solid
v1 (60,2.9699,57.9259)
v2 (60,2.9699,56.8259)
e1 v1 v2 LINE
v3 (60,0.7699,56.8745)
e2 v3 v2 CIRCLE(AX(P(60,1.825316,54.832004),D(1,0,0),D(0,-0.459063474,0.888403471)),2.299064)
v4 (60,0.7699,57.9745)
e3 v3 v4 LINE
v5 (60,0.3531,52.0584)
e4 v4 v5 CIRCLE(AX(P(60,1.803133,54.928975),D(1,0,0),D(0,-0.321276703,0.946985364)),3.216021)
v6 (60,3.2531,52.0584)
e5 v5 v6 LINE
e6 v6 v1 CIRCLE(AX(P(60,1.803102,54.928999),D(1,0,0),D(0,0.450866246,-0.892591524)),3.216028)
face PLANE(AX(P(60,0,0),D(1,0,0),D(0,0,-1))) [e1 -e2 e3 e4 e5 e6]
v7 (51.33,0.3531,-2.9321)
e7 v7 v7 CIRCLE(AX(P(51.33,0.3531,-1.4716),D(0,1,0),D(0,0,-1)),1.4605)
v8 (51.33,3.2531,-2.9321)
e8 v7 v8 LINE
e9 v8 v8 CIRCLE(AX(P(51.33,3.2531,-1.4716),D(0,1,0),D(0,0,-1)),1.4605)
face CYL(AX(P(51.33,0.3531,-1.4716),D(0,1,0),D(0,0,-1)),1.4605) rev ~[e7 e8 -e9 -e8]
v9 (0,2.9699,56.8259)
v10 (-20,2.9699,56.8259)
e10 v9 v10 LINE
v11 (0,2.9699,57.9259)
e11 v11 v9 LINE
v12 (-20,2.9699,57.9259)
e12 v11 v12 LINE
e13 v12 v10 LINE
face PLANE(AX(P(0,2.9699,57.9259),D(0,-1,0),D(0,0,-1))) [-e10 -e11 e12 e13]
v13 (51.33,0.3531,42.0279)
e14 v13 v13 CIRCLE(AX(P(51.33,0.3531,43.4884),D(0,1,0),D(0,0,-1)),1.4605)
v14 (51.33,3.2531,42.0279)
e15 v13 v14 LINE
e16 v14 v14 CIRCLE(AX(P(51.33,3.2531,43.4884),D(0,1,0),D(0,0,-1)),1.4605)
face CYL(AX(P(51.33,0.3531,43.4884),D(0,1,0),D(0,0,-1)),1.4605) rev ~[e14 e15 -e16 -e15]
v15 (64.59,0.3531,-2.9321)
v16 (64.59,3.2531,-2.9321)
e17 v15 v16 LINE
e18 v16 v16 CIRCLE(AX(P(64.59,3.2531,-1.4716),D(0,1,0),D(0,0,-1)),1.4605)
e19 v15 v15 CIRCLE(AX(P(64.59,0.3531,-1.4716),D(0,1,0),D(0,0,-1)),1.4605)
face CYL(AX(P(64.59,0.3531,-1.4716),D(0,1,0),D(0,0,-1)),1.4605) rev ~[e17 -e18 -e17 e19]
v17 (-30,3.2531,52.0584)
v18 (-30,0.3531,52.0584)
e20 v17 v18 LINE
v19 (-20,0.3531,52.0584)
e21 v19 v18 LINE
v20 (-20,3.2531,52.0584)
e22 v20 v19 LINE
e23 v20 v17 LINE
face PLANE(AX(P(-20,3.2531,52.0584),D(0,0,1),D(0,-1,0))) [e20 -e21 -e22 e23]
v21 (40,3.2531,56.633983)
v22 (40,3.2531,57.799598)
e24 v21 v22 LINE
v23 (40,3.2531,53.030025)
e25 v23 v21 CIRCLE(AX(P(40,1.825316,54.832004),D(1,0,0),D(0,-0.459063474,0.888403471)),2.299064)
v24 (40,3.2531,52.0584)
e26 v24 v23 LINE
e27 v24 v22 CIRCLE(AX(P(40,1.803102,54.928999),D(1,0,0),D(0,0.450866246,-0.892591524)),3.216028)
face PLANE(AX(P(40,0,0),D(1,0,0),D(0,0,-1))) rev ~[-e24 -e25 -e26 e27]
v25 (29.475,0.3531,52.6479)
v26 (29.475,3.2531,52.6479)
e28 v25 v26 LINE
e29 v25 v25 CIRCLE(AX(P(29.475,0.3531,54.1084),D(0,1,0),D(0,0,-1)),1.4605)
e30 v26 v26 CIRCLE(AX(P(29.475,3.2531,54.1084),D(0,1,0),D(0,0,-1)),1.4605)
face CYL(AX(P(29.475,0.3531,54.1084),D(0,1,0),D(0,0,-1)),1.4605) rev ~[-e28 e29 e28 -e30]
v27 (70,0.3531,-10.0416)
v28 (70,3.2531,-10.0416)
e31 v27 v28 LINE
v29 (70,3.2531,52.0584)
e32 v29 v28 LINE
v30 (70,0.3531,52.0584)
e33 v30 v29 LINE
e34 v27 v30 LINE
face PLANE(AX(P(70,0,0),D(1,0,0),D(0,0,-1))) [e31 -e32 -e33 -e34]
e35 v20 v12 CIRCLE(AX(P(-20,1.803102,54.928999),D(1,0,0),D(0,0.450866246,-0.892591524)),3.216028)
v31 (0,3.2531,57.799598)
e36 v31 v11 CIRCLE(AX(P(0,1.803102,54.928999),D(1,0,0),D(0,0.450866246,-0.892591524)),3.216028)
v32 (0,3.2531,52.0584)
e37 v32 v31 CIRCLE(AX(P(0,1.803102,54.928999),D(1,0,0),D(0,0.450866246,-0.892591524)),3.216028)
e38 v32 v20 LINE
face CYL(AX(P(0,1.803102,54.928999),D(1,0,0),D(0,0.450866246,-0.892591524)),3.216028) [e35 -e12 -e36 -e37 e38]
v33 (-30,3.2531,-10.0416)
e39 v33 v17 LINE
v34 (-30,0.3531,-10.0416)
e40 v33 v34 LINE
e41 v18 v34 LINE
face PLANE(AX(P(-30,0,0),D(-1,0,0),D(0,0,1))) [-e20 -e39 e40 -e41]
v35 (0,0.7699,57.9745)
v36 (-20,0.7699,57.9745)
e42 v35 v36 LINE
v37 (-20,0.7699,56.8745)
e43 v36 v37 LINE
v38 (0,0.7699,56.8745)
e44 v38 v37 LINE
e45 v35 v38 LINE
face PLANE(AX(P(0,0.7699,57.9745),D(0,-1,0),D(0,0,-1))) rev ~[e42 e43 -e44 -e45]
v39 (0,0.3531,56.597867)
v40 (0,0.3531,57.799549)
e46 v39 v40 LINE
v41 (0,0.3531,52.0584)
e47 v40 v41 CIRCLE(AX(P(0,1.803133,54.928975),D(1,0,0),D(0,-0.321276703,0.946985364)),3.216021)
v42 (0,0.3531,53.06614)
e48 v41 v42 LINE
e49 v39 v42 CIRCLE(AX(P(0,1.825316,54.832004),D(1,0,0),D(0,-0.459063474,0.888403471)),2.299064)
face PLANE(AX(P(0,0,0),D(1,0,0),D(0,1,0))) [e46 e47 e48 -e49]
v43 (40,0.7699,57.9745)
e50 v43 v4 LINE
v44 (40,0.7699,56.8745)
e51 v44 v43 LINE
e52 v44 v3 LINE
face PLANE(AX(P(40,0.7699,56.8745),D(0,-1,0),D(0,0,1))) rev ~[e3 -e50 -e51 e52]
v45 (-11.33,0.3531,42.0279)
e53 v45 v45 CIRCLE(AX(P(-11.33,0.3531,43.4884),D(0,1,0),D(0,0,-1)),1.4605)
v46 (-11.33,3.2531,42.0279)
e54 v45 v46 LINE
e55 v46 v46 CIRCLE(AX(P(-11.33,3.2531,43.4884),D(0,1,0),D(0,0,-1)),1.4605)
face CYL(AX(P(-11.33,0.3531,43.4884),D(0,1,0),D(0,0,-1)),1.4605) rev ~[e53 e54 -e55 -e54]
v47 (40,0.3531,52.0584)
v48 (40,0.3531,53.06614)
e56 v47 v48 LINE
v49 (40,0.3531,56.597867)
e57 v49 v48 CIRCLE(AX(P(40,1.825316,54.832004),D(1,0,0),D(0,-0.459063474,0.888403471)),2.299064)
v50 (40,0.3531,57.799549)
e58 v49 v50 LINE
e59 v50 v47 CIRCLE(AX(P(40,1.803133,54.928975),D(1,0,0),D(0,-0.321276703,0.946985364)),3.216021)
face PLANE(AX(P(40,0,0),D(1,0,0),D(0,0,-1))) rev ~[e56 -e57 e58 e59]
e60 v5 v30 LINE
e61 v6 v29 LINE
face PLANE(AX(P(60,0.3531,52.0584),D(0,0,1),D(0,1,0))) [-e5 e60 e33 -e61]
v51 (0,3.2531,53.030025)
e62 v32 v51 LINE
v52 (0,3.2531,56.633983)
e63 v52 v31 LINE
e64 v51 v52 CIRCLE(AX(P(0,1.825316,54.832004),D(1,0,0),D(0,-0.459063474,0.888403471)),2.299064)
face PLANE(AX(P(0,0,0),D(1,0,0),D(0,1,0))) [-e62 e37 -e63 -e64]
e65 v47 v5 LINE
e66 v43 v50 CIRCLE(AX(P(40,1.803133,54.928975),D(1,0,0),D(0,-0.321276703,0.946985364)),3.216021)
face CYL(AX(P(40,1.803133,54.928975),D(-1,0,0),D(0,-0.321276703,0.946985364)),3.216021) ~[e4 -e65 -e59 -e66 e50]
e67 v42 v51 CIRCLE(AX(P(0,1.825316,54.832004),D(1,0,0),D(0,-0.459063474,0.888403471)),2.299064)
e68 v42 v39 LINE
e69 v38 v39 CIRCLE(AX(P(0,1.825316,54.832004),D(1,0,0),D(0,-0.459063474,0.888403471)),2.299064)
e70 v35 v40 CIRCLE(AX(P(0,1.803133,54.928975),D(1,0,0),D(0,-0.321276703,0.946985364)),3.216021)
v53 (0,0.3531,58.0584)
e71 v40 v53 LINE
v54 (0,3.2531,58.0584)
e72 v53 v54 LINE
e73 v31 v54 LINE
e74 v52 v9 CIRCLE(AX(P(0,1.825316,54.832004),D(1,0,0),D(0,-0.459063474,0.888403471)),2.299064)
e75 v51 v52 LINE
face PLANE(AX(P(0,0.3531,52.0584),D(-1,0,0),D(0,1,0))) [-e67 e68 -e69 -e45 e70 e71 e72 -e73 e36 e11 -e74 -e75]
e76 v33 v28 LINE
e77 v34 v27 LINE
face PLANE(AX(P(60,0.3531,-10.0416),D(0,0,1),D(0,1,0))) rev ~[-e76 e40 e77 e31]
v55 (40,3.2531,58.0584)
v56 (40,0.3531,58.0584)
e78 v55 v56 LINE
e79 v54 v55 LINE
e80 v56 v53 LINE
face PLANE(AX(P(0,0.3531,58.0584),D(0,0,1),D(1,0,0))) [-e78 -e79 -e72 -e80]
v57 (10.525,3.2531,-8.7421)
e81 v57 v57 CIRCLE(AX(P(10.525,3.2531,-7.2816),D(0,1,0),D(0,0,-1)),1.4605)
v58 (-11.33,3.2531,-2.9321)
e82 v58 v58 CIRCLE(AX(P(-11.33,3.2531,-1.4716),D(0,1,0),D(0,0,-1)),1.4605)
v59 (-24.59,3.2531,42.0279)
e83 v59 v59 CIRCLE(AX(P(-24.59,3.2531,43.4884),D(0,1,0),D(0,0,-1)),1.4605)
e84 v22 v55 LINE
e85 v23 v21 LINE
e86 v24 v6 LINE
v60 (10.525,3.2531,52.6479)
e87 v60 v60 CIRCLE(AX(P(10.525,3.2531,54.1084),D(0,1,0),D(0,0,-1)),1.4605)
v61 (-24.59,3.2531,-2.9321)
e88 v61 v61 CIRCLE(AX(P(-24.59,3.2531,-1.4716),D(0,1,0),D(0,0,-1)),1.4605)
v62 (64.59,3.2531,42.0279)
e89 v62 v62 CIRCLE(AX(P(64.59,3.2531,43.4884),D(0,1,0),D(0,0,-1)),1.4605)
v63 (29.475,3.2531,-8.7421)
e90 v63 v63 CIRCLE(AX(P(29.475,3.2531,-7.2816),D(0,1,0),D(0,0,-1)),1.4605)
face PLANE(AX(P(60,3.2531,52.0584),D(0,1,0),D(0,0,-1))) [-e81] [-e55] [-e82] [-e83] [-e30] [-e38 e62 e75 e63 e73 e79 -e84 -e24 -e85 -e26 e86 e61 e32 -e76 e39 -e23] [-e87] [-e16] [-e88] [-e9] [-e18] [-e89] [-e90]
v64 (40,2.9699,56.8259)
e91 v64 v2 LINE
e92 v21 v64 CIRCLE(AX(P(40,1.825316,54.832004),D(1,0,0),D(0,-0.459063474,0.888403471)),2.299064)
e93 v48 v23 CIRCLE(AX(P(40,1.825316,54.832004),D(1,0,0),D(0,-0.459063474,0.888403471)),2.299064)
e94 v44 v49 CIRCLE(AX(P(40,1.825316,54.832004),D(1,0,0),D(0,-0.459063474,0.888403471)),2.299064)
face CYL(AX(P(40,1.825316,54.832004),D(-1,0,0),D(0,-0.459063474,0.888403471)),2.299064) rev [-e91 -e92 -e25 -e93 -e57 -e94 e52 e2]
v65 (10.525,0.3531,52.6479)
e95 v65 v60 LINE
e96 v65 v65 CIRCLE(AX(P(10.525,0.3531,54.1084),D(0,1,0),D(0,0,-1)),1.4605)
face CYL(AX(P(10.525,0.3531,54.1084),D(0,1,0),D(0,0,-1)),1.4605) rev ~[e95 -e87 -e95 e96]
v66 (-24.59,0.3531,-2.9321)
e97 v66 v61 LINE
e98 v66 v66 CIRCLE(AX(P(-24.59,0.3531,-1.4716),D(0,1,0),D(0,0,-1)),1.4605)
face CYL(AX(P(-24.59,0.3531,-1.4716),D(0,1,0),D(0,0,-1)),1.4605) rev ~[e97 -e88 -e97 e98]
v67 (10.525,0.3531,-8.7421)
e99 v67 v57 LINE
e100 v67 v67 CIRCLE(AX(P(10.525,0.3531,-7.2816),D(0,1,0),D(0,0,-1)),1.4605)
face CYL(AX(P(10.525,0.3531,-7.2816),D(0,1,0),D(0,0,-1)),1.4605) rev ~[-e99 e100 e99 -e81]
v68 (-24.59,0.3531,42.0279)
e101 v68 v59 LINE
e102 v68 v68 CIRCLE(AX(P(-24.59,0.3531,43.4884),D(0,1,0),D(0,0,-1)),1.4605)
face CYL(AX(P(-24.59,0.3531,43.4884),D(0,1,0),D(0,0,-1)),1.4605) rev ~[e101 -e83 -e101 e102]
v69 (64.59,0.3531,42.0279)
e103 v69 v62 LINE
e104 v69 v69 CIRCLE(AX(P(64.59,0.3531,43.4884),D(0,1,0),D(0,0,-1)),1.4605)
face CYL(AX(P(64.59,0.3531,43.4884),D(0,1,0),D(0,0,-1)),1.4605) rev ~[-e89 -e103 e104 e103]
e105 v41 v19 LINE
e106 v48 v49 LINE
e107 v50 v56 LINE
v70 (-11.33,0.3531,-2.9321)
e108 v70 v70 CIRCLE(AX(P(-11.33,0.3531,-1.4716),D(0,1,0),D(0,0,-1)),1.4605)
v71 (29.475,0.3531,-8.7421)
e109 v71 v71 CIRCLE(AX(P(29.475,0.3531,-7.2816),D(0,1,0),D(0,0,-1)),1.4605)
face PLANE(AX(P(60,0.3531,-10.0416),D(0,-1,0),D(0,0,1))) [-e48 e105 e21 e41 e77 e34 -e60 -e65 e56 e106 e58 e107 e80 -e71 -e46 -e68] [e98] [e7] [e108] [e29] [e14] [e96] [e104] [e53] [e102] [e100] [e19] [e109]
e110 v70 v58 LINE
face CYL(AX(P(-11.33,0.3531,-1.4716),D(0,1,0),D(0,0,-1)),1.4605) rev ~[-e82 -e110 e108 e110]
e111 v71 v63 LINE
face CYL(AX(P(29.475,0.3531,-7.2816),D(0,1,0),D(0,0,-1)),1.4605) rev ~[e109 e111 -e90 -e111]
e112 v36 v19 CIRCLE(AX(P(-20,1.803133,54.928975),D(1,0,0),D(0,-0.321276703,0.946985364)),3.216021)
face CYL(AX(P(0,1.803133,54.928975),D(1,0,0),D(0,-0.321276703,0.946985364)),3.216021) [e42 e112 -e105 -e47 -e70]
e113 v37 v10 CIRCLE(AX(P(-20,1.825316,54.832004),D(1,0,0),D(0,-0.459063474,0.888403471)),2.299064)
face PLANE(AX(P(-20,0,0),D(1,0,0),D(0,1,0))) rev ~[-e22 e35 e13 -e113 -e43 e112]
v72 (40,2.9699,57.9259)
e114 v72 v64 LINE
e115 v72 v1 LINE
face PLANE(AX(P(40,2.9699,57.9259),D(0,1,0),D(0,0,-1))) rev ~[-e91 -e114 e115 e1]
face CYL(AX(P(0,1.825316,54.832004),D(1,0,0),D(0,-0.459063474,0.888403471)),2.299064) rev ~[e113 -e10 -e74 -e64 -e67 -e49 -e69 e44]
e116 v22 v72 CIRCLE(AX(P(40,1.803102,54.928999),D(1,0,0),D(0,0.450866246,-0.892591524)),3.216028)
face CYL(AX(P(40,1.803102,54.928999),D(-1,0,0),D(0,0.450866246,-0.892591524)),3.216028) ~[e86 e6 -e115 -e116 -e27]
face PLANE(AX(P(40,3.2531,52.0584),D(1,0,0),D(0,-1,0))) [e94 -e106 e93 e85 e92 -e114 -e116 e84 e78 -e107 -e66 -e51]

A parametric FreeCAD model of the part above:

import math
import FreeCAD as App
import Part
import Sketcher

V = App.Vector
Q = App.Units.Quantity

doc = App.newDocument("Part")
params = doc.addObject("Spreadsheet::Sheet", "Params")
for row, (alias, value) in enumerate([
    ("sketch1_width", "2.9 mm"),
    ("sketch1_height", "62.1 mm"),
    ("sketch1_height2", "1.1 mm"),
    ("pad1_length", "20 mm"),
    ("sketch2_width", "2.9 mm"),
    ("sketch2_height", "62.1 mm"),
    ("pad2_length", "40 mm"),
    ("sketch3_height", "1.1 mm"),
    ("sketch3_width", "2.9 mm"),
    ("sketch3_height2", "62.1 mm"),
    ("pad3_length", "20 mm"),
    ("sketch4_width", "40 mm"),
    ("sketch4_height", "2.9 mm"),
    ("pad4_length", "6 mm"),
    ("sketch5_width", "2.9 mm"),
    ("sketch5_height", "62.1 mm"),
    ("pad5_length", "10 mm"),
    ("sketch6_width", "2.9 mm"),
    ("sketch6_height", "62.1 mm"),
    ("pad6_length", "10 mm"),
    ("hole_diameter", "2.921 mm"),
    ("hole2_diameter", "2.921 mm"),
    ("hole3_diameter", "2.921 mm"),
    ("hole4_diameter", "2.921 mm"),
    ("hole5_diameter", "2.921 mm"),
    ("hole6_diameter", "2.921 mm"),
    ("hole7_diameter", "2.921 mm"),
    ("hole8_diameter", "2.921 mm"),
    ("hole9_diameter", "2.921 mm"),
    ("hole10_diameter", "2.921 mm"),
    ("hole11_diameter", "2.921 mm"),
    ("hole12_diameter", "2.921 mm"),
], start=1):
    params.set(f"A{row}", alias)
    params.set(f"B{row}", "=" + value)
    params.setAlias(f"B{row}", alias)

body = doc.addObject("PartDesign::Body", "Body")

# Sketch on YZ plane
sketch1 = body.newObject("Sketcher::SketchObject", "Sketch")
sketch1.AttachmentSupport = (doc.getObject("YZ_Plane"), [""])
sketch1.MapMode = "FlatFace"
sketch1.addGeometry([
    Part.LineSegment(V(3.2531, -10.0416, 0), V(3.2531, 52.0584, 0)),  # 0
    Part.ArcOfCircle(Part.Circle(V(1.8031, 54.929, 0), V(0, 0, 1), 3.216029), math.radians(-63.200706), math.radians(68.727263)),  # 1
    Part.LineSegment(V(2.9699, 57.9259, 0), V(2.9699, 56.8259, 0)),  # 2
    Part.ArcOfCircle(Part.Circle(V(1.8253, 54.832, 0), V(0, 0, 1), 2.29906), math.radians(117.32629), math.radians(420.141984)),  # 3
    Part.LineSegment(V(0.7699, 56.8745, 0), V(0.7699, 57.9745, 0)),  # 4
    Part.ArcOfCircle(Part.Circle(V(1.8031, 54.929, 0), V(0, 0, 1), 3.216029), math.radians(108.739744), math.radians(243.200706)),  # 5
    Part.LineSegment(V(0.3531, 52.0584, 0), V(0.3531, -10.0416, 0)),  # 6
    Part.LineSegment(V(0.3531, -10.0416, 0), V(3.2531, -10.0416, 0)),  # 7
], False)
sketch1.addConstraint([
    Sketcher.Constraint("Coincident", 0, 2, 1, 1),
    Sketcher.Constraint("Coincident", 1, 2, 2, 1),
    Sketcher.Constraint("Coincident", 2, 2, 3, 2),
    Sketcher.Constraint("Coincident", 3, 1, 4, 1),
    Sketcher.Constraint("Coincident", 4, 2, 5, 1),
    Sketcher.Constraint("Coincident", 5, 2, 6, 1),
    Sketcher.Constraint("Coincident", 6, 2, 7, 1),
    Sketcher.Constraint("Coincident", 7, 2, 0, 1),
    Sketcher.Constraint("Vertical", 0),
    Sketcher.Constraint("Vertical", 2),
    Sketcher.Constraint("Vertical", 4),
    Sketcher.Constraint("Vertical", 6),
    Sketcher.Constraint("Horizontal", 7),
    Sketcher.Constraint("Coincident", 5, 3, 1, 3),
    Sketcher.Constraint("Equal", 1, 5),
    Sketcher.Constraint("Horizontal", 0, 2, 5, 2),
    Sketcher.Constraint("Equal", 2, 4),
    Sketcher.Constraint("DistanceX", 7, 1, 7, 2, Q("2.9 mm")),
    Sketcher.Constraint("DistanceY", 0, 1, 0, 2, Q("62.1 mm")),
    Sketcher.Constraint("DistanceY", 2, 2, 2, 1, Q("1.1 mm")),
    Sketcher.Constraint("DistanceX", 3, 1, 2, 2, Q("2.2 mm")),
    Sketcher.Constraint("Radius", 1, Q("3.216 mm")),
    Sketcher.Constraint("Radius", 3, Q("2.299 mm")),
    Sketcher.Constraint("DistanceX", -1, 1, 1, 2, Q("2.97 mm")),
    Sketcher.Constraint("DistanceX", -1, 1, 1, 3, Q("1.803 mm")),
    Sketcher.Constraint("DistanceY", -1, 1, 1, 3, Q("54.929 mm")),
])
sketch1.setExpression("Constraints[17]", "Params.sketch1_width")
sketch1.setExpression("Constraints[18]", "Params.sketch1_height")
sketch1.setExpression("Constraints[19]", "Params.sketch1_height2")
pad1 = body.newObject("PartDesign::Pad", "Pad")
pad1.Profile = sketch1
pad1.setExpression("Length", "Params.pad1_length")
pad1.Reversed = True

# Sketch on YZ plane
sketch2 = body.newObject("Sketcher::SketchObject", "Sketch001")
sketch2.AttachmentSupport = (doc.getObject("YZ_Plane"), [""])
sketch2.MapMode = "FlatFace"
sketch2.addGeometry([
    Part.LineSegment(V(0.3531, 52.0584, 0), V(0.3531, -10.0416, 0)),
    Part.LineSegment(V(0.3531, -10.0416, 0), V(3.2531, -10.0416, 0)),
    Part.LineSegment(V(3.2531, -10.0416, 0), V(3.2531, 52.0584, 0)),
    Part.LineSegment(V(3.2531, 52.0584, 0), V(0.3531, 52.0584, 0)),
], False)
sketch2.addConstraint([
    Sketcher.Constraint("Coincident", 0, 2, 1, 1),
    Sketcher.Constraint("Coincident", 1, 2, 2, 1),
    Sketcher.Constraint("Coincident", 2, 2, 3, 1),
    Sketcher.Constraint("Coincident", 3, 2, 0, 1),
    Sketcher.Constraint("Vertical", 0),
    Sketcher.Constraint("Horizontal", 1),
    Sketcher.Constraint("Vertical", 2),
    Sketcher.Constraint("Horizontal", 3),
    Sketcher.Constraint("DistanceX", 1, 1, 1, 2, Q("2.9 mm")),
    Sketcher.Constraint("DistanceY", 0, 2, 0, 1, Q("62.1 mm")),
    Sketcher.Constraint("DistanceX", -1, 1, 0, 2, Q("0.353 mm")),
    Sketcher.Constraint("DistanceY", 0, 2, -1, 1, Q("10.0416 mm")),
])
sketch2.setExpression("Constraints[8]", "Params.sketch2_width")
sketch2.setExpression("Constraints[9]", "Params.sketch2_height")
pad2 = body.newObject("PartDesign::Pad", "Pad001")
pad2.Profile = sketch2
pad2.setExpression("Length", "Params.pad2_length")

# Sketch on YZ plane
sketch3 = body.newObject("Sketcher::SketchObject", "Sketch002")
sketch3.AttachmentSupport = (doc.getObject("YZ_Plane"), [""])
sketch3.MapMode = "FlatFace"
sketch3.AttachmentOffset = App.Placement(V(0, 0, 40), App.Rotation())
sketch3.addGeometry([
    Part.LineSegment(V(0.3531, 52.0584, 0), V(0.3531, -10.0416, 0)),  # 0
    Part.LineSegment(V(0.3531, -10.0416, 0), V(3.2531, -10.0416, 0)),  # 1
    Part.LineSegment(V(3.2531, -10.0416, 0), V(3.2531, 52.0584, 0)),  # 2
    Part.ArcOfCircle(Part.Circle(V(1.8031, 54.929, 0), V(0, 0, 1), 3.216029), math.radians(-63.200706), math.radians(68.727263)),  # 3
    Part.LineSegment(V(2.9699, 57.9259, 0), V(2.9699, 56.8259, 0)),  # 4
    Part.ArcOfCircle(Part.Circle(V(1.8253, 54.832, 0), V(0, 0, 1), 2.29906), math.radians(117.32629), math.radians(420.141984)),  # 5
    Part.LineSegment(V(0.7699, 56.8745, 0), V(0.7699, 57.9745, 0)),  # 6
    Part.ArcOfCircle(Part.Circle(V(1.8031, 54.929, 0), V(0, 0, 1), 3.216029), math.radians(108.739744), math.radians(243.200706)),  # 7
], False)
sketch3.addConstraint([
    Sketcher.Constraint("Coincident", 0, 2, 1, 1),
    Sketcher.Constraint("Coincident", 1, 2, 2, 1),
    Sketcher.Constraint("Coincident", 2, 2, 3, 1),
    Sketcher.Constraint("Coincident", 3, 2, 4, 1),
    Sketcher.Constraint("Coincident", 4, 2, 5, 2),
    Sketcher.Constraint("Coincident", 5, 1, 6, 1),
    Sketcher.Constraint("Coincident", 6, 2, 7, 1),
    Sketcher.Constraint("Coincident", 7, 2, 0, 1),
    Sketcher.Constraint("Vertical", 0),
    Sketcher.Constraint("Horizontal", 1),
    Sketcher.Constraint("Vertical", 2),
    Sketcher.Constraint("Vertical", 4),
    Sketcher.Constraint("Vertical", 6),
    Sketcher.Constraint("Coincident", 7, 3, 3, 3),
    Sketcher.Constraint("Equal", 3, 7),
    Sketcher.Constraint("Horizontal", 2, 2, 7, 2),
    Sketcher.Constraint("Equal", 4, 6),
    Sketcher.Constraint("DistanceY", 4, 2, 4, 1, Q("1.1 mm")),
    Sketcher.Constraint("DistanceX", 5, 1, 4, 2, Q("2.2 mm")),
    Sketcher.Constraint("DistanceX", 1, 1, 1, 2, Q("2.9 mm")),
    Sketcher.Constraint("DistanceY", 0, 2, 0, 1, Q("62.1 mm")),
    Sketcher.Constraint("Radius", 3, Q("3.216 mm")),
    Sketcher.Constraint("Radius", 5, Q("2.299 mm")),
    Sketcher.Constraint("DistanceX", -1, 1, 3, 2, Q("2.97 mm")),
    Sketcher.Constraint("DistanceX", -1, 1, 3, 3, Q("1.803 mm")),
    Sketcher.Constraint("DistanceY", -1, 1, 3, 3, Q("54.929 mm")),
])
sketch3.setExpression("Constraints[17]", "Params.sketch3_height")
sketch3.setExpression("Constraints[19]", "Params.sketch3_width")
sketch3.setExpression("Constraints[20]", "Params.sketch3_height2")
pad3 = body.newObject("PartDesign::Pad", "Pad002")
pad3.Profile = sketch3
pad3.setExpression("Length", "Params.pad3_length")

# Sketch on XY plane
sketch4 = body.newObject("Sketcher::SketchObject", "Sketch003")
sketch4.AttachmentSupport = (doc.getObject("XY_Plane"), [""])
sketch4.MapMode = "FlatFace"
sketch4.AttachmentOffset = App.Placement(V(0, 0, 52.0584), App.Rotation())
sketch4.addGeometry([
    Part.LineSegment(V(40, 3.2531, 0), V(0, 3.2531, 0)),
    Part.LineSegment(V(0, 3.2531, 0), V(0, 0.3531, 0)),
    Part.LineSegment(V(0, 0.3531, 0), V(40, 0.3531, 0)),
    Part.LineSegment(V(40, 0.3531, 0), V(40, 3.2531, 0)),
], False)
sketch4.addConstraint([
    Sketcher.Constraint("Coincident", 0, 2, 1, 1),
    Sketcher.Constraint("Coincident", 1, 2, 2, 1),
    Sketcher.Constraint("Coincident", 2, 2, 3, 1),
    Sketcher.Constraint("Coincident", 3, 2, 0, 1),
    Sketcher.Constraint("Horizontal", 0),
    Sketcher.Constraint("Vertical", 1),
    Sketcher.Constraint("Horizontal", 2),
    Sketcher.Constraint("Vertical", 3),
    Sketcher.Constraint("PointOnObject", 0, 2, -2),
    Sketcher.Constraint("DistanceX", 0, 2, 0, 1, Q("40 mm")),
    Sketcher.Constraint("DistanceY", 1, 2, 1, 1, Q("2.9 mm")),
    Sketcher.Constraint("DistanceY", -1, 1, 0, 2, Q("3.253 mm")),
])
sketch4.setExpression("Constraints[9]", "Params.sketch4_width")
sketch4.setExpression("Constraints[10]", "Params.sketch4_height")
pad4 = body.newObject("PartDesign::Pad", "Pad003")
pad4.Profile = sketch4
pad4.setExpression("Length", "Params.pad4_length")

# Sketch on YZ plane
sketch5 = body.newObject("Sketcher::SketchObject", "Sketch004")
sketch5.AttachmentSupport = (doc.getObject("YZ_Plane"), [""])
sketch5.MapMode = "FlatFace"
sketch5.AttachmentOffset = App.Placement(V(0, 0, -20), App.Rotation())
sketch5.addGeometry([
    Part.LineSegment(V(3.2531, 52.0584, 0), V(3.2531, -10.0416, 0)),
    Part.LineSegment(V(3.2531, -10.0416, 0), V(0.3531, -10.0416, 0)),
    Part.LineSegment(V(0.3531, -10.0416, 0), V(0.3531, 52.0584, 0)),
    Part.LineSegment(V(0.3531, 52.0584, 0), V(3.2531, 52.0584, 0)),
], False)
sketch5.addConstraint([
    Sketcher.Constraint("Coincident", 0, 2, 1, 1),
    Sketcher.Constraint("Coincident", 1, 2, 2, 1),
    Sketcher.Constraint("Coincident", 2, 2, 3, 1),
    Sketcher.Constraint("Coincident", 3, 2, 0, 1),
    Sketcher.Constraint("Vertical", 0),
    Sketcher.Constraint("Horizontal", 1),
    Sketcher.Constraint("Vertical", 2),
    Sketcher.Constraint("Horizontal", 3),
    Sketcher.Constraint("DistanceX", 1, 2, 1, 1, Q("2.9 mm")),
    Sketcher.Constraint("DistanceY", 0, 2, 0, 1, Q("62.1 mm")),
    Sketcher.Constraint("DistanceX", -1, 1, 0, 2, Q("3.253 mm")),
    Sketcher.Constraint("DistanceY", 0, 2, -1, 1, Q("10.0416 mm")),
])
sketch5.setExpression("Constraints[8]", "Params.sketch5_width")
sketch5.setExpression("Constraints[9]", "Params.sketch5_height")
pad5 = body.newObject("PartDesign::Pad", "Pad004")
pad5.Profile = sketch5
pad5.setExpression("Length", "Params.pad5_length")
pad5.Reversed = True

# Sketch on YZ plane
sketch6 = body.newObject("Sketcher::SketchObject", "Sketch005")
sketch6.AttachmentSupport = (doc.getObject("YZ_Plane"), [""])
sketch6.MapMode = "FlatFace"
sketch6.AttachmentOffset = App.Placement(V(0, 0, 60), App.Rotation())
sketch6.addGeometry([
    Part.LineSegment(V(0.3531, 52.0584, 0), V(0.3531, -10.0416, 0)),
    Part.LineSegment(V(0.3531, -10.0416, 0), V(3.2531, -10.0416, 0)),
    Part.LineSegment(V(3.2531, -10.0416, 0), V(3.2531, 52.0584, 0)),
    Part.LineSegment(V(3.2531, 52.0584, 0), V(0.3531, 52.0584, 0)),
], False)
sketch6.addConstraint([
    Sketcher.Constraint("Coincident", 0, 2, 1, 1),
    Sketcher.Constraint("Coincident", 1, 2, 2, 1),
    Sketcher.Constraint("Coincident", 2, 2, 3, 1),
    Sketcher.Constraint("Coincident", 3, 2, 0, 1),
    Sketcher.Constraint("Vertical", 0),
    Sketcher.Constraint("Horizontal", 1),
    Sketcher.Constraint("Vertical", 2),
    Sketcher.Constraint("Horizontal", 3),
    Sketcher.Constraint("DistanceX", 1, 1, 1, 2, Q("2.9 mm")),
    Sketcher.Constraint("DistanceY", 0, 2, 0, 1, Q("62.1 mm")),
    Sketcher.Constraint("DistanceX", -1, 1, 0, 2, Q("0.353 mm")),
    Sketcher.Constraint("DistanceY", 0, 2, -1, 1, Q("10.0416 mm")),
])
sketch6.setExpression("Constraints[8]", "Params.sketch6_width")
sketch6.setExpression("Constraints[9]", "Params.sketch6_height")
pad6 = body.newObject("PartDesign::Pad", "Pad005")
pad6.Profile = sketch6
pad6.setExpression("Length", "Params.pad6_length")

# Sketch on XZ plane
sketch7 = body.newObject("Sketcher::SketchObject", "Sketch006")
sketch7.AttachmentSupport = (doc.getObject("XZ_Plane"), [""])
sketch7.MapMode = "FlatFace"
sketch7.AttachmentOffset = App.Placement(V(0, 0, -0.3531), App.Rotation())
sketch7.addGeometry(Part.Circle(V(10.525, 54.1084, 0), V(0, 0, 1), 1.4605), False)
sketch7.addConstraint([
    Sketcher.Constraint("Diameter", 0, Q("2.921 mm")),
    Sketcher.Constraint("DistanceX", -1, 1, 0, 3, Q("10.525 mm")),
    Sketcher.Constraint("DistanceY", -1, 1, 0, 3, Q("54.1084 mm")),
])
doc.recompute()
hole = body.newObject("PartDesign::Hole", "Hole")
hole.Profile = sketch7
hole.ThreadType = "None"
hole.setExpression("Diameter", "Params.hole_diameter")
hole.DepthType = "ThroughAll"

# Sketch on XZ plane
sketch8 = body.newObject("Sketcher::SketchObject", "Sketch007")
sketch8.AttachmentSupport = (doc.getObject("XZ_Plane"), [""])
sketch8.MapMode = "FlatFace"
sketch8.AttachmentOffset = App.Placement(V(0, 0, -0.3531), App.Rotation())
sketch8.addGeometry(Part.Circle(V(29.475, 54.1084, 0), V(0, 0, 1), 1.4605), False)
sketch8.addConstraint([
    Sketcher.Constraint("Diameter", 0, Q("2.921 mm")),
    Sketcher.Constraint("DistanceX", -1, 1, 0, 3, Q("29.475 mm")),
    Sketcher.Constraint("DistanceY", -1, 1, 0, 3, Q("54.1084 mm")),
])
doc.recompute()
hole2 = body.newObject("PartDesign::Hole", "Hole001")
hole2.Profile = sketch8
hole2.ThreadType = "None"
hole2.setExpression("Diameter", "Params.hole2_diameter")
hole2.DepthType = "ThroughAll"

# Sketch on XZ plane
sketch9 = body.newObject("Sketcher::SketchObject", "Sketch008")
sketch9.AttachmentSupport = (doc.getObject("XZ_Plane"), [""])
sketch9.MapMode = "FlatFace"
sketch9.AttachmentOffset = App.Placement(V(0, 0, -0.3531), App.Rotation())
sketch9.addGeometry(Part.Circle(V(10.525, -7.2816, 0), V(0, 0, 1), 1.4605), False)
sketch9.addConstraint([
    Sketcher.Constraint("Diameter", 0, Q("2.921 mm")),
    Sketcher.Constraint("DistanceX", -1, 1, 0, 3, Q("10.525 mm")),
    Sketcher.Constraint("DistanceY", 0, 3, -1, 1, Q("7.2816 mm")),
])
doc.recompute()
hole3 = body.newObject("PartDesign::Hole", "Hole002")
hole3.Profile = sketch9
hole3.ThreadType = "None"
hole3.setExpression("Diameter", "Params.hole3_diameter")
hole3.DepthType = "ThroughAll"

# Sketch on XZ plane
sketch10 = body.newObject("Sketcher::SketchObject", "Sketch009")
sketch10.AttachmentSupport = (doc.getObject("XZ_Plane"), [""])
sketch10.MapMode = "FlatFace"
sketch10.AttachmentOffset = App.Placement(V(0, 0, -0.3531), App.Rotation())
sketch10.addGeometry(Part.Circle(V(29.475, -7.2816, 0), V(0, 0, 1), 1.4605), False)
sketch10.addConstraint([
    Sketcher.Constraint("Diameter", 0, Q("2.921 mm")),
    Sketcher.Constraint("DistanceX", -1, 1, 0, 3, Q("29.475 mm")),
    Sketcher.Constraint("DistanceY", 0, 3, -1, 1, Q("7.2816 mm")),
])
doc.recompute()
hole4 = body.newObject("PartDesign::Hole", "Hole003")
hole4.Profile = sketch10
hole4.ThreadType = "None"
hole4.setExpression("Diameter", "Params.hole4_diameter")
hole4.DepthType = "ThroughAll"

# Sketch on XZ plane
sketch11 = body.newObject("Sketcher::SketchObject", "Sketch010")
sketch11.AttachmentSupport = (doc.getObject("XZ_Plane"), [""])
sketch11.MapMode = "FlatFace"
sketch11.AttachmentOffset = App.Placement(V(0, 0, -0.3531), App.Rotation())
sketch11.addGeometry(Part.Circle(V(-24.59, 43.4884, 0), V(0, 0, 1), 1.4605), False)
sketch11.addConstraint([
    Sketcher.Constraint("Diameter", 0, Q("2.921 mm")),
    Sketcher.Constraint("DistanceX", 0, 3, -1, 1, Q("24.59 mm")),
    Sketcher.Constraint("DistanceY", -1, 1, 0, 3, Q("43.4884 mm")),
])
doc.recompute()
hole5 = body.newObject("PartDesign::Hole", "Hole004")
hole5.Profile = sketch11
hole5.ThreadType = "None"
hole5.setExpression("Diameter", "Params.hole5_diameter")
hole5.DepthType = "ThroughAll"

# Sketch on XZ plane
sketch12 = body.newObject("Sketcher::SketchObject", "Sketch011")
sketch12.AttachmentSupport = (doc.getObject("XZ_Plane"), [""])
sketch12.MapMode = "FlatFace"
sketch12.AttachmentOffset = App.Placement(V(0, 0, -0.3531), App.Rotation())
sketch12.addGeometry(Part.Circle(V(-11.33, 43.4884, 0), V(0, 0, 1), 1.4605), False)
sketch12.addConstraint([
    Sketcher.Constraint("Diameter", 0, Q("2.921 mm")),
    Sketcher.Constraint("DistanceX", 0, 3, -1, 1, Q("11.33 mm")),
    Sketcher.Constraint("DistanceY", -1, 1, 0, 3, Q("43.4884 mm")),
])
doc.recompute()
hole6 = body.newObject("PartDesign::Hole", "Hole005")
hole6.Profile = sketch12
hole6.ThreadType = "None"
hole6.setExpression("Diameter", "Params.hole6_diameter")
hole6.DepthType = "ThroughAll"

# Sketch on XZ plane
sketch13 = body.newObject("Sketcher::SketchObject", "Sketch012")
sketch13.AttachmentSupport = (doc.getObject("XZ_Plane"), [""])
sketch13.MapMode = "FlatFace"
sketch13.AttachmentOffset = App.Placement(V(0, 0, -0.3531), App.Rotation())
sketch13.addGeometry(Part.Circle(V(-24.59, -1.4716, 0), V(0, 0, 1), 1.4605), False)
sketch13.addConstraint([
    Sketcher.Constraint("Diameter", 0, Q("2.921 mm")),
    Sketcher.Constraint("DistanceX", 0, 3, -1, 1, Q("24.59 mm")),
    Sketcher.Constraint("DistanceY", 0, 3, -1, 1, Q("1.4716 mm")),
])
doc.recompute()
hole7 = body.newObject("PartDesign::Hole", "Hole006")
hole7.Profile = sketch13
hole7.ThreadType = "None"
hole7.setExpression("Diameter", "Params.hole7_diameter")
hole7.DepthType = "ThroughAll"

# Sketch on XZ plane
sketch14 = body.newObject("Sketcher::SketchObject", "Sketch013")
sketch14.AttachmentSupport = (doc.getObject("XZ_Plane"), [""])
sketch14.MapMode = "FlatFace"
sketch14.AttachmentOffset = App.Placement(V(0, 0, -0.3531), App.Rotation())
sketch14.addGeometry(Part.Circle(V(-11.33, -1.4716, 0), V(0, 0, 1), 1.4605), False)
sketch14.addConstraint([
    Sketcher.Constraint("Diameter", 0, Q("2.921 mm")),
    Sketcher.Constraint("DistanceX", 0, 3, -1, 1, Q("11.33 mm")),
    Sketcher.Constraint("DistanceY", 0, 3, -1, 1, Q("1.4716 mm")),
])
doc.recompute()
hole8 = body.newObject("PartDesign::Hole", "Hole007")
hole8.Profile = sketch14
hole8.ThreadType = "None"
hole8.setExpression("Diameter", "Params.hole8_diameter")
hole8.DepthType = "ThroughAll"

# Sketch on XZ plane
sketch15 = body.newObject("Sketcher::SketchObject", "Sketch014")
sketch15.AttachmentSupport = (doc.getObject("XZ_Plane"), [""])
sketch15.MapMode = "FlatFace"
sketch15.AttachmentOffset = App.Placement(V(0, 0, -0.3531), App.Rotation())
sketch15.addGeometry(Part.Circle(V(64.59, 43.4884, 0), V(0, 0, 1), 1.4605), False)
sketch15.addConstraint([
    Sketcher.Constraint("Diameter", 0, Q("2.921 mm")),
    Sketcher.Constraint("DistanceX", -1, 1, 0, 3, Q("64.59 mm")),
    Sketcher.Constraint("DistanceY", -1, 1, 0, 3, Q("43.4884 mm")),
])
doc.recompute()
hole9 = body.newObject("PartDesign::Hole", "Hole008")
hole9.Profile = sketch15
hole9.ThreadType = "None"
hole9.setExpression("Diameter", "Params.hole9_diameter")
hole9.DepthType = "ThroughAll"

# Sketch on XZ plane
sketch16 = body.newObject("Sketcher::SketchObject", "Sketch015")
sketch16.AttachmentSupport = (doc.getObject("XZ_Plane"), [""])
sketch16.MapMode = "FlatFace"
sketch16.AttachmentOffset = App.Placement(V(0, 0, -0.3531), App.Rotation())
sketch16.addGeometry(Part.Circle(V(51.33, 43.4884, 0), V(0, 0, 1), 1.4605), False)
sketch16.addConstraint([
    Sketcher.Constraint("Diameter", 0, Q("2.921 mm")),
    Sketcher.Constraint("DistanceX", -1, 1, 0, 3, Q("51.33 mm")),
    Sketcher.Constraint("DistanceY", -1, 1, 0, 3, Q("43.4884 mm")),
])
doc.recompute()
hole10 = body.newObject("PartDesign::Hole", "Hole009")
hole10.Profile = sketch16
hole10.ThreadType = "None"
hole10.setExpression("Diameter", "Params.hole10_diameter")
hole10.DepthType = "ThroughAll"

# Sketch on XZ plane
sketch17 = body.newObject("Sketcher::SketchObject", "Sketch016")
sketch17.AttachmentSupport = (doc.getObject("XZ_Plane"), [""])
sketch17.MapMode = "FlatFace"
sketch17.AttachmentOffset = App.Placement(V(0, 0, -0.3531), App.Rotation())
sketch17.addGeometry(Part.Circle(V(64.59, -1.4716, 0), V(0, 0, 1), 1.4605), False)
sketch17.addConstraint([
    Sketcher.Constraint("Diameter", 0, Q("2.921 mm")),
    Sketcher.Constraint("DistanceX", -1, 1, 0, 3, Q("64.59 mm")),
    Sketcher.Constraint("DistanceY", 0, 3, -1, 1, Q("1.4716 mm")),
])
doc.recompute()
hole11 = body.newObject("PartDesign::Hole", "Hole010")
hole11.Profile = sketch17
hole11.ThreadType = "None"
hole11.setExpression("Diameter", "Params.hole11_diameter")
hole11.DepthType = "ThroughAll"

# Sketch on XZ plane
sketch18 = body.newObject("Sketcher::SketchObject", "Sketch017")
sketch18.AttachmentSupport = (doc.getObject("XZ_Plane"), [""])
sketch18.MapMode = "FlatFace"
sketch18.AttachmentOffset = App.Placement(V(0, 0, -0.3531), App.Rotation())
sketch18.addGeometry(Part.Circle(V(51.33, -1.4716, 0), V(0, 0, 1), 1.4605), False)
sketch18.addConstraint([
    Sketcher.Constraint("Diameter", 0, Q("2.921 mm")),
    Sketcher.Constraint("DistanceX", -1, 1, 0, 3, Q("51.33 mm")),
    Sketcher.Constraint("DistanceY", 0, 3, -1, 1, Q("1.4716 mm")),
])
doc.recompute()
hole12 = body.newObject("PartDesign::Hole", "Hole011")
hole12.Profile = sketch18
hole12.ThreadType = "None"
hole12.setExpression("Diameter", "Params.hole12_diameter")
hole12.DepthType = "ThroughAll"

doc.recompute()
